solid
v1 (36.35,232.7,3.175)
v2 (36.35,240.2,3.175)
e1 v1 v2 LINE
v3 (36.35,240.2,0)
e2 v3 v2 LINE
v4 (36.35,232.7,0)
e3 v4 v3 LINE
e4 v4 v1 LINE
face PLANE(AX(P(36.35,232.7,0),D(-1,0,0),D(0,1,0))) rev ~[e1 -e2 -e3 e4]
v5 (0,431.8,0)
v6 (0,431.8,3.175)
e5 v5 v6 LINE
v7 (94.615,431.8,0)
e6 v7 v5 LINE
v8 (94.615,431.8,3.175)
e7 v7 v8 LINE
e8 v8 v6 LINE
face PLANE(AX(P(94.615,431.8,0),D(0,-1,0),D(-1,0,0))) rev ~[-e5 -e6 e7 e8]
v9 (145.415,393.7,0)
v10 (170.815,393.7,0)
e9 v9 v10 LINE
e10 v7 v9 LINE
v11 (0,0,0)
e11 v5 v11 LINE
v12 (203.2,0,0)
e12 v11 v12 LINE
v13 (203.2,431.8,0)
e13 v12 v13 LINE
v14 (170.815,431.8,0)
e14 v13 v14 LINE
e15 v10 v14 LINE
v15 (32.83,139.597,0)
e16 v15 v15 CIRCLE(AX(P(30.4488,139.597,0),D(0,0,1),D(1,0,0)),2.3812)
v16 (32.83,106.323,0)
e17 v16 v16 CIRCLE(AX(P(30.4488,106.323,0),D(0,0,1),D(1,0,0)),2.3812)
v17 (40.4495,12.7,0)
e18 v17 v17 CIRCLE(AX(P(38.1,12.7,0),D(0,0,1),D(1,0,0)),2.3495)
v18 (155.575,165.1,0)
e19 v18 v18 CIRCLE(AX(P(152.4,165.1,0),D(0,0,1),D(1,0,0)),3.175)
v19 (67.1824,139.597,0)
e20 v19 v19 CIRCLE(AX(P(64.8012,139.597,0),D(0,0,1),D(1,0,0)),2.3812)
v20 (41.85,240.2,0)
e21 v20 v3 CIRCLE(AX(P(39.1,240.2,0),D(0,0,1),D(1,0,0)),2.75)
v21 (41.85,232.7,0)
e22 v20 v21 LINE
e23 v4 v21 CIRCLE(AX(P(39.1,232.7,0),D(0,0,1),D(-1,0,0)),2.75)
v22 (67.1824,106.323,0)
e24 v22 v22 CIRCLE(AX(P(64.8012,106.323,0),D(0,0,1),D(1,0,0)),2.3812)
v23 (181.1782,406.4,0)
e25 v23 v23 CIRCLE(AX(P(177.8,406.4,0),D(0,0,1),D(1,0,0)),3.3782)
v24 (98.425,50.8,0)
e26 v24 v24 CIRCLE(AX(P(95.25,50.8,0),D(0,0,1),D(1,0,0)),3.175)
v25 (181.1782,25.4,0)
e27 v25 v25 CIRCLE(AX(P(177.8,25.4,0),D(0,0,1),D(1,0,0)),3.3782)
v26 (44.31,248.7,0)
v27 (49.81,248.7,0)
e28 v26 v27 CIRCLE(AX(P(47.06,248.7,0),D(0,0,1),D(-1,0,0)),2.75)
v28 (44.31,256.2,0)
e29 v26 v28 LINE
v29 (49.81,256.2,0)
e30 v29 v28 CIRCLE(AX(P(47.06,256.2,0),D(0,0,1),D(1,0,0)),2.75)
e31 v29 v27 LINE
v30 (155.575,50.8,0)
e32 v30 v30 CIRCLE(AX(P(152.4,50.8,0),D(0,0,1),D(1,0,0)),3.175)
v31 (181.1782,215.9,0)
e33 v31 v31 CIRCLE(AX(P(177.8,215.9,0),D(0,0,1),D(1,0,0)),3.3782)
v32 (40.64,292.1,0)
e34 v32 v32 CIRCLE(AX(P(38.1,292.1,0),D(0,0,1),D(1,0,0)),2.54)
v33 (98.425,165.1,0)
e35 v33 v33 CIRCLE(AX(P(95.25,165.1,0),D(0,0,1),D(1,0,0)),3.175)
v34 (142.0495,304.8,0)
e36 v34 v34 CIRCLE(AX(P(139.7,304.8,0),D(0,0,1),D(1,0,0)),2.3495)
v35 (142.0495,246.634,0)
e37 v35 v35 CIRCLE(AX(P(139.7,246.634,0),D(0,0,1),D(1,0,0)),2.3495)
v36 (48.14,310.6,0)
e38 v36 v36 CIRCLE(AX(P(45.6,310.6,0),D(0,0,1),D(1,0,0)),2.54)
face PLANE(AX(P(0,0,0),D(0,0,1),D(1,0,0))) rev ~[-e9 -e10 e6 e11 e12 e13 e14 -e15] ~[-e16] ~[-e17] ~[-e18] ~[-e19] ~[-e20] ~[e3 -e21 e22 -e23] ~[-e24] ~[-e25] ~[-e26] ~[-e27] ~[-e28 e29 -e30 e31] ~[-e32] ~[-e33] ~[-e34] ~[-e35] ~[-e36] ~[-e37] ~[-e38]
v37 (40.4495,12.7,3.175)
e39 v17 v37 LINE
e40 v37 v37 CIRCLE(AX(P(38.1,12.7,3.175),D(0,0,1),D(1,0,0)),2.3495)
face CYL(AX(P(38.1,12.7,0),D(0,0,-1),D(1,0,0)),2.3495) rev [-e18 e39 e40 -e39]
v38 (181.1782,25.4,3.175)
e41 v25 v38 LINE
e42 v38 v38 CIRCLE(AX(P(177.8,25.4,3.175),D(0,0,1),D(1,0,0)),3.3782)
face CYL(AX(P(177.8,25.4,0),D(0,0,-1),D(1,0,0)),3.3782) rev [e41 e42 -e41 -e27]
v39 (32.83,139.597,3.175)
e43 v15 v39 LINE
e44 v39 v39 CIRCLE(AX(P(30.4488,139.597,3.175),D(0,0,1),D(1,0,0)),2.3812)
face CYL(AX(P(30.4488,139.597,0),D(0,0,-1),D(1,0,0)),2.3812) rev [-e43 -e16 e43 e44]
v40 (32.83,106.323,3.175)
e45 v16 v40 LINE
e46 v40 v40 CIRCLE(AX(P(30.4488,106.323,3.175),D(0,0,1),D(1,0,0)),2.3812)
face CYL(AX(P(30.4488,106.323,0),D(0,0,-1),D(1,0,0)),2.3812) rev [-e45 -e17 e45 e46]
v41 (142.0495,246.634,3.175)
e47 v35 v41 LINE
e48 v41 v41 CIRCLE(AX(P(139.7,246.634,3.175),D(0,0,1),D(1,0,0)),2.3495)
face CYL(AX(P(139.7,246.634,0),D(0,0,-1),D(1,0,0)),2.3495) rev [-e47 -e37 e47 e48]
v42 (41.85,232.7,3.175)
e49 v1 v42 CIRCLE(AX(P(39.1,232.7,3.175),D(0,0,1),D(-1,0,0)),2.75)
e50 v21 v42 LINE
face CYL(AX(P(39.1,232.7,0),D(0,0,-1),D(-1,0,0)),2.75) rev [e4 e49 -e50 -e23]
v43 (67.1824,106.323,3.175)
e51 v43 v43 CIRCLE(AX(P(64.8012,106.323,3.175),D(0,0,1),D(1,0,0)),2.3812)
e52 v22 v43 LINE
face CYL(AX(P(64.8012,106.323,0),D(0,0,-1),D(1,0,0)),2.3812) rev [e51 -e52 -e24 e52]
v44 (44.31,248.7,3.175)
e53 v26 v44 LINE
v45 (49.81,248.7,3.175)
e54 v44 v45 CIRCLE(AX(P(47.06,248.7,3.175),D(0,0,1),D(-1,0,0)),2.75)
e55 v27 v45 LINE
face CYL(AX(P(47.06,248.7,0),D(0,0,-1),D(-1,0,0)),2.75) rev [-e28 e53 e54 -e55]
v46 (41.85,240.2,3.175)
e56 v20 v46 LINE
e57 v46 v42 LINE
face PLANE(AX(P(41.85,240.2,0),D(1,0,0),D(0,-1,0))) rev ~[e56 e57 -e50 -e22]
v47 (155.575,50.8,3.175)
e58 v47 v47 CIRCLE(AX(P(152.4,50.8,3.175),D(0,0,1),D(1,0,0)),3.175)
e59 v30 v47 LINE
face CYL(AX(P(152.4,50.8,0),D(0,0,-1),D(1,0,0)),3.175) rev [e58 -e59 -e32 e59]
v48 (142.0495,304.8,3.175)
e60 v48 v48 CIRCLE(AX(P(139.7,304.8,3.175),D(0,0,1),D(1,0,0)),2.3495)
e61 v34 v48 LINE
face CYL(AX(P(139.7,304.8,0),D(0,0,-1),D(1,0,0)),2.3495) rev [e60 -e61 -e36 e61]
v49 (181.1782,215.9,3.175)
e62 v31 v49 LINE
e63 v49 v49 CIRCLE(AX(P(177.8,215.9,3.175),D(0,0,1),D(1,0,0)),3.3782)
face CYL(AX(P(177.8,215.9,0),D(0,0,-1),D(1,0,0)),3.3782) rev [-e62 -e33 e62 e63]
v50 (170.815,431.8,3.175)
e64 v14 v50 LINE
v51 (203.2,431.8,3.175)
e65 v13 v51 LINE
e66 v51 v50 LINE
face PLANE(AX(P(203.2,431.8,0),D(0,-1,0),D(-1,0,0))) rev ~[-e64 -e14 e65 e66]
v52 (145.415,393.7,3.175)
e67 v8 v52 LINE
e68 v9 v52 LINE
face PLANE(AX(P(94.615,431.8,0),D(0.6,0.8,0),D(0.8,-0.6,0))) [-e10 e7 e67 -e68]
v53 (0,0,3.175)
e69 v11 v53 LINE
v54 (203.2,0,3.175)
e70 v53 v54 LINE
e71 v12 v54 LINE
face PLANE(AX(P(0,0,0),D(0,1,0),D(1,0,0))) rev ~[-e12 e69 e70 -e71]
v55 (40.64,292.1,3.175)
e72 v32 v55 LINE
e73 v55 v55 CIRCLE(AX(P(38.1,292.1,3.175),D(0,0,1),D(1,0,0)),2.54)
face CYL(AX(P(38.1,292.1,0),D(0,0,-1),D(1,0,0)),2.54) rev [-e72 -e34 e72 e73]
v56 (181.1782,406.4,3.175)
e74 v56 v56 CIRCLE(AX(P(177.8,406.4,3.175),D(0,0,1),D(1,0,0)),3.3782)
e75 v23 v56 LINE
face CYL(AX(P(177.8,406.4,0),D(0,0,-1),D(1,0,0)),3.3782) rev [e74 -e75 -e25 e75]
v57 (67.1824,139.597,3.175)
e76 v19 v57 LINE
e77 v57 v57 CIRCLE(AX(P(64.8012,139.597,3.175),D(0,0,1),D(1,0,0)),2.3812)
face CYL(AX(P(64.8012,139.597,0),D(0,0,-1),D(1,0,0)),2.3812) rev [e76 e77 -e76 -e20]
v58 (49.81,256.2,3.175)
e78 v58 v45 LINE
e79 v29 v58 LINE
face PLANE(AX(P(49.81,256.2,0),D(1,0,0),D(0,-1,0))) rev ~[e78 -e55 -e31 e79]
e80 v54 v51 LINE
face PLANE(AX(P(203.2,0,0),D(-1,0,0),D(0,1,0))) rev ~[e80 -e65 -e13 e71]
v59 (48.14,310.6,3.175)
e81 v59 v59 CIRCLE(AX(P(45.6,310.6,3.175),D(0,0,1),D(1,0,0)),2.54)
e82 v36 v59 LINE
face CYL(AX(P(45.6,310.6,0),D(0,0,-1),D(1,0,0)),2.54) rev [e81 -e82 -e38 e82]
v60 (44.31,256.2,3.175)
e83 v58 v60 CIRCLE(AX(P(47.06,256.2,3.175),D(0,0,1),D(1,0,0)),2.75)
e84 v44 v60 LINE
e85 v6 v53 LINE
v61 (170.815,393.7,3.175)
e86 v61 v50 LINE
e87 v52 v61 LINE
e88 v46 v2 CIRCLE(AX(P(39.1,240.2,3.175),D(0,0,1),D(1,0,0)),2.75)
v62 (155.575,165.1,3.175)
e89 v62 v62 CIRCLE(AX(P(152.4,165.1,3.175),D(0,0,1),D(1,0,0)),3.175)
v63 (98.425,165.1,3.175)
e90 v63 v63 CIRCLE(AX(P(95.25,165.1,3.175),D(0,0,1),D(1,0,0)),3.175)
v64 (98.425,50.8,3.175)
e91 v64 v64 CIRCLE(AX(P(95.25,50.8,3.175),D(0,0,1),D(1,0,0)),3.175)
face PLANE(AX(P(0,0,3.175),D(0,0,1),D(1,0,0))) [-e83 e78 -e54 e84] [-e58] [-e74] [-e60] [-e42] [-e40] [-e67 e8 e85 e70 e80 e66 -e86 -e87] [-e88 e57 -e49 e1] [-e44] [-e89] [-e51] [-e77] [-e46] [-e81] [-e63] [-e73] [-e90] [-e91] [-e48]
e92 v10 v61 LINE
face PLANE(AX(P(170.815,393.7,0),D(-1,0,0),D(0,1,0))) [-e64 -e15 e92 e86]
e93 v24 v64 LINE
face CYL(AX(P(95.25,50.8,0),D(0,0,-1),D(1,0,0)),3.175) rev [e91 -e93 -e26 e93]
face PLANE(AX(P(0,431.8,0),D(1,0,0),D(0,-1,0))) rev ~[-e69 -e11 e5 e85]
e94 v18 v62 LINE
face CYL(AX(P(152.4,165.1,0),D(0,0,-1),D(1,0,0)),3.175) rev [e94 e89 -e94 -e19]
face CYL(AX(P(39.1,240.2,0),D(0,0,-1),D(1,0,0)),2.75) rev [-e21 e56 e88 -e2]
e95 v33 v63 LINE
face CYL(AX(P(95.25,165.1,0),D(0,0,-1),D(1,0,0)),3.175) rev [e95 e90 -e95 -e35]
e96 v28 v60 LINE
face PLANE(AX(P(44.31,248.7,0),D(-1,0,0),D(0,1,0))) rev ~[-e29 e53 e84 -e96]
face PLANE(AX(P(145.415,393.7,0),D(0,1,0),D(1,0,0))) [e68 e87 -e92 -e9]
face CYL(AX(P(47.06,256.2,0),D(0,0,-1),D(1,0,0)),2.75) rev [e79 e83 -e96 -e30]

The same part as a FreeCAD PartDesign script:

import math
import FreeCAD as App
import Part
import Sketcher
from FreeCAD import Vector
Q = App.Units.Quantity

doc = App.newDocument("Part")
body = doc.addObject("PartDesign::Body", "Body")

# Sketch on XY plane
sketch1 = body.newObject("Sketcher::SketchObject", "Sketch")
sketch1.AttachmentSupport = (doc.getObject("XY_Plane"), [""])
sketch1.MapMode = "FlatFace"
sketch1.addGeometry(Part.LineSegment(Vector(0, 431.8, 0), Vector(0, 0, 0)), False)
sketch1.addGeometry(Part.LineSegment(Vector(0, 0, 0), Vector(203.2, 0, 0)), False)
sketch1.addGeometry(Part.LineSegment(Vector(203.2, 0, 0), Vector(203.2, 431.8, 0)), False)
sketch1.addGeometry(Part.LineSegment(Vector(203.2, 431.8, 0), Vector(170.8, 431.8, 0)), False)
sketch1.addGeometry(Part.LineSegment(Vector(170.8, 431.8, 0), Vector(170.8, 393.7, 0)), False)
sketch1.addGeometry(Part.LineSegment(Vector(170.8, 393.7, 0), Vector(145.4, 393.7, 0)), False)
sketch1.addGeometry(Part.LineSegment(Vector(145.4, 393.7, 0), Vector(94.6, 431.8, 0)), False)
sketch1.addGeometry(Part.LineSegment(Vector(94.6, 431.8, 0), Vector(0, 431.8, 0)), False)
sketch1.addGeometry(Part.Circle(Vector(38.1, 12.7, 0), Vector(0, 0, 1), 2.3), False)
sketch1.addGeometry(Part.Circle(Vector(30.4, 106.3, 0), Vector(0, 0, 1), 2.4), False)
sketch1.addGeometry(Part.Circle(Vector(95.2, 50.8, 0), Vector(0, 0, 1), 3.2), False)
sketch1.addGeometry(Part.Circle(Vector(64.8, 106.3, 0), Vector(0, 0, 1), 2.4), False)
sketch1.addGeometry(Part.Circle(Vector(30.4, 139.6, 0), Vector(0, 0, 1), 2.4), False)
sketch1.addGeometry(Part.Circle(Vector(64.8, 139.6, 0), Vector(0, 0, 1), 2.4), False)
sketch1.addGeometry(Part.Circle(Vector(95.2, 165.1, 0), Vector(0, 0, 1), 3.2), False)
sketch1.addGeometry(Part.Circle(Vector(152.4, 50.8, 0), Vector(0, 0, 1), 3.2), False)
sketch1.addGeometry(Part.Circle(Vector(177.8, 25.4, 0), Vector(0, 0, 1), 3.4), False)
sketch1.addGeometry(Part.Circle(Vector(152.4, 165.1, 0), Vector(0, 0, 1), 3.2), False)
sketch1.addGeometry(Part.Circle(Vector(38.1, 292.1, 0), Vector(0, 0, 1), 2.5), False)
sketch1.addGeometry(Part.Circle(Vector(45.6, 310.6, 0), Vector(0, 0, 1), 2.5), False)
sketch1.addGeometry(Part.Circle(Vector(139.7, 246.6, 0), Vector(0, 0, 1), 2.3), False)
sketch1.addGeometry(Part.Circle(Vector(139.7, 304.8, 0), Vector(0, 0, 1), 2.3), False)
sketch1.addGeometry(Part.Circle(Vector(177.8, 215.9, 0), Vector(0, 0, 1), 3.4), False)
sketch1.addGeometry(Part.Circle(Vector(177.8, 406.4, 0), Vector(0, 0, 1), 3.4), False)
sketch1.addGeometry(Part.ArcOfCircle(Part.Circle(Vector(39.1, 232.7, 0), Vector(0, 0, 1), 2.8), math.radians(180), math.radians(360)), False)
sketch1.addGeometry(Part.LineSegment(Vector(36.4, 232.7, 0), Vector(36.4, 240.2, 0)), False)
sketch1.addGeometry(Part.ArcOfCircle(Part.Circle(Vector(39.1, 240.2, 0), Vector(0, 0, 1), 2.8), math.radians(0), math.radians(180)), False)
sketch1.addGeometry(Part.LineSegment(Vector(41.9, 240.2, 0), Vector(41.9, 232.7, 0)), False)
sketch1.addGeometry(Part.ArcOfCircle(Part.Circle(Vector(47.1, 256.2, 0), Vector(0, 0, 1), 2.8), math.radians(0), math.radians(180)), False)
sketch1.addGeometry(Part.LineSegment(Vector(49.8, 256.2, 0), Vector(49.8, 248.7, 0)), False)
sketch1.addGeometry(Part.ArcOfCircle(Part.Circle(Vector(47.1, 248.7, 0), Vector(0, 0, 1), 2.8), math.radians(180), math.radians(360)), False)
sketch1.addGeometry(Part.LineSegment(Vector(44.3, 248.7, 0), Vector(44.3, 256.2, 0)), False)
sketch1.addConstraint(Sketcher.Constraint("Coincident", 0, 2, 1, 1))
sketch1.addConstraint(Sketcher.Constraint("Coincident", 1, 2, 2, 1))
sketch1.addConstraint(Sketcher.Constraint("Coincident", 2, 2, 3, 1))
sketch1.addConstraint(Sketcher.Constraint("Coincident", 3, 2, 4, 1))
sketch1.addConstraint(Sketcher.Constraint("Coincident", 4, 2, 5, 1))
sketch1.addConstraint(Sketcher.Constraint("Coincident", 5, 2, 6, 1))
sketch1.addConstraint(Sketcher.Constraint("Coincident", 6, 2, 7, 1))
sketch1.addConstraint(Sketcher.Constraint("Coincident", 7, 2, 0, 1))
sketch1.addConstraint(Sketcher.Constraint("Tangent", 24, 1, 25, 1))
sketch1.addConstraint(Sketcher.Constraint("Tangent", 25, 2, 26, 2))
sketch1.addConstraint(Sketcher.Constraint("Tangent", 26, 1, 27, 1))
sketch1.addConstraint(Sketcher.Constraint("Tangent", 27, 2, 24, 2))
sketch1.addConstraint(Sketcher.Constraint("Tangent", 28, 1, 29, 1))
sketch1.addConstraint(Sketcher.Constraint("Tangent", 29, 2, 30, 2))
sketch1.addConstraint(Sketcher.Constraint("Tangent", 30, 1, 31, 1))
sketch1.addConstraint(Sketcher.Constraint("Tangent", 31, 2, 28, 2))
sketch1.addConstraint(Sketcher.Constraint("Vertical", 0))
sketch1.addConstraint(Sketcher.Constraint("Horizontal", 1))
sketch1.addConstraint(Sketcher.Constraint("Vertical", 2))
sketch1.addConstraint(Sketcher.Constraint("Horizontal", 3))
sketch1.addConstraint(Sketcher.Constraint("Vertical", 4))
sketch1.addConstraint(Sketcher.Constraint("Horizontal", 5))
sketch1.addConstraint(Sketcher.Constraint("Horizontal", 7))
sketch1.addConstraint(Sketcher.Constraint("Vertical", 25))
sketch1.addConstraint(Sketcher.Constraint("Vertical", 27))
sketch1.addConstraint(Sketcher.Constraint("Vertical", 29))
sketch1.addConstraint(Sketcher.Constraint("Vertical", 31))
sketch1.addConstraint(Sketcher.Constraint("Coincident", 0, 2, -1, 1))
sketch1.addConstraint(Sketcher.Constraint("Equal", 9, 11))
sketch1.addConstraint(Sketcher.Constraint("Equal", 11, 12))
sketch1.addConstraint(Sketcher.Constraint("Equal", 12, 13))
sketch1.addConstraint(Sketcher.Constraint("Equal", 10, 14))
sketch1.addConstraint(Sketcher.Constraint("Equal", 14, 15))
sketch1.addConstraint(Sketcher.Constraint("Equal", 15, 17))
sketch1.addConstraint(Sketcher.Constraint("Equal", 18, 19))
sketch1.addConstraint(Sketcher.Constraint("Equal", 8, 20))
sketch1.addConstraint(Sketcher.Constraint("Equal", 20, 21))
sketch1.addConstraint(Sketcher.Constraint("Equal", 16, 22))
sketch1.addConstraint(Sketcher.Constraint("Equal", 22, 23))
sketch1.addConstraint(Sketcher.Constraint("Equal", 26, 28))
sketch1.addConstraint(Sketcher.Constraint("Horizontal", 9, 3, 11, 3))
sketch1.addConstraint(Sketcher.Constraint("Horizontal", 12, 3, 13, 3))
sketch1.addConstraint(Sketcher.Constraint("Horizontal", 10, 3, 15, 3))
sketch1.addConstraint(Sketcher.Constraint("Horizontal", 14, 3, 17, 3))
sketch1.addConstraint(Sketcher.Constraint("Horizontal", 3, 2, 6, 2))
sketch1.addConstraint(Sketcher.Constraint("Vertical", 9, 3, 12, 3))
sketch1.addConstraint(Sketcher.Constraint("Vertical", 11, 3, 13, 3))
sketch1.addConstraint(Sketcher.Constraint("Vertical", 10, 3, 14, 3))
sketch1.addConstraint(Sketcher.Constraint("Vertical", 15, 3, 17, 3))
sketch1.addConstraint(Sketcher.Constraint("Vertical", 8, 3, 18, 3))
sketch1.addConstraint(Sketcher.Constraint("Vertical", 20, 3, 21, 3))
sketch1.addConstraint(Sketcher.Constraint("Vertical", 16, 3, 22, 3))
sketch1.addConstraint(Sketcher.Constraint("Vertical", 22, 3, 23, 3))
sketch1.addConstraint(Sketcher.Constraint("Equal", 27, 29))
sketch1.addConstraint(Sketcher.Constraint("Diameter", 18, Q("0.2 in")))
sketch1.addConstraint(Sketcher.Constraint("Diameter", 10, Q("0.25 in")))
sketch1.addConstraint(Sketcher.Constraint("DistanceX", 1, 1, 1, 2, Q("8 in")))
sketch1.addConstraint(Sketcher.Constraint("DistanceX", 5, 2, 5, 1, Q("1 in")))
sketch1.addConstraint(Sketcher.Constraint("DistanceY", 0, 2, 0, 1, Q("17 in")))
sketch1.addConstraint(Sketcher.Constraint("Diameter", 8, Q("0.185 in")))
sketch1.addConstraint(Sketcher.Constraint("Diameter", 16, Q("0.266 in")))
sketch1.addConstraint(Sketcher.Constraint("DistanceY", 4, 2, 4, 1, Q("1.5 in")))
sketch1.addConstraint(Sketcher.Constraint("DistanceY", -1, 1, 10, 3, Q("2 in")))
sketch1.addConstraint(Sketcher.Constraint("DistanceY", -1, 1, 16, 3, Q("1 in")))
sketch1.addConstraint(Sketcher.Constraint("DistanceX", 15, 3, 16, 3, Q("1 in")))
sketch1.addConstraint(Sketcher.Constraint("DistanceY", 14, 3, 18, 3, Q("5 in")))
sketch1.addConstraint(Sketcher.Constraint("DistanceY", 17, 3, 22, 3, Q("2 in")))
sketch1.addConstraint(Sketcher.Constraint("DistanceX", 16, 3, 1, 2, Q("1 in")))
sketch1.addConstraint(Sketcher.Constraint("DistanceY", 23, 3, 2, 2, Q("1 in")))
sketch1.addConstraint(Sketcher.Constraint("DistanceY", 21, 3, 2, 2, Q("5 in")))
sketch1.addConstraint(Sketcher.Constraint("DistanceX", 6, 2, 5, 2, Q("2 in")))
sketch1.addConstraint(Sketcher.Constraint("DistanceX", -1, 1, 8, 3, Q("1.5 in")))
sketch1.addConstraint(Sketcher.Constraint("DistanceY", -1, 1, 8, 3, Q("0.5 in")))
sketch1.addConstraint(Sketcher.Constraint("DistanceY", 10, 3, 14, 3, Q("4.5 in")))
sketch1.addConstraint(Sketcher.Constraint("DistanceX", 20, 3, 17, 3, Q("0.5 in")))
sketch1.addConstraint(Sketcher.Constraint("DistanceX", 3, 2, 3, 1, Q("1.275 in")))
sketch1.addConstraint(Sketcher.Constraint("DistanceX", 8, 3, 10, 3, Q("2.25 in")))
sketch1.addConstraint(Sketcher.Constraint("DistanceY", 20, 3, 21, 3, Q("2.29 in")))
sketch1.addConstraint(Sketcher.Constraint("Diameter", 9, Q("0.1875 in")))
sketch1.addConstraint(Sketcher.Constraint("DistanceY", 25, 1, 25, 2, Q("7.5 mm")))
sketch1.addConstraint(Sketcher.Constraint("Radius", 24, Q("2.75 mm")))
sketch1.addConstraint(Sketcher.Constraint("DistanceY", 9, 3, 12, 3, Q("1.31 in")))
sketch1.addConstraint(Sketcher.Constraint("DistanceX", 18, 3, 19, 3, Q("7.5 mm")))
sketch1.addConstraint(Sketcher.Constraint("DistanceY", 18, 3, 19, 3, Q("18.5 mm")))
sketch1.addConstraint(Sketcher.Constraint("DistanceY", 30, 3, 19, 3, Q("2.437 in")))
sketch1.addConstraint(Sketcher.Constraint("DistanceY", -1, 1, 26, 3, Q("9.4567 in")))
sketch1.addConstraint(Sketcher.Constraint("DistanceX", -1, 1, 24, 1, Q("1.4311 in")))
sketch1.addConstraint(Sketcher.Constraint("DistanceX", -1, 1, 30, 1, Q("1.7445 in")))
sketch1.addConstraint(Sketcher.Constraint("DistanceX", 12, 3, 19, 3, Q("0.5965 in")))
sketch1.addConstraint(Sketcher.Constraint("DistanceY", 12, 3, 19, 3, Q("6.7324 in")))
sketch1.addConstraint(Sketcher.Constraint("DistanceX", -1, 1, 11, 3, Q("64.8012 mm")))
pad1 = body.newObject("PartDesign::Pad", "Pad")
pad1.Profile = sketch1
pad1.Length = Q("0.125 in")

doc.recompute()
